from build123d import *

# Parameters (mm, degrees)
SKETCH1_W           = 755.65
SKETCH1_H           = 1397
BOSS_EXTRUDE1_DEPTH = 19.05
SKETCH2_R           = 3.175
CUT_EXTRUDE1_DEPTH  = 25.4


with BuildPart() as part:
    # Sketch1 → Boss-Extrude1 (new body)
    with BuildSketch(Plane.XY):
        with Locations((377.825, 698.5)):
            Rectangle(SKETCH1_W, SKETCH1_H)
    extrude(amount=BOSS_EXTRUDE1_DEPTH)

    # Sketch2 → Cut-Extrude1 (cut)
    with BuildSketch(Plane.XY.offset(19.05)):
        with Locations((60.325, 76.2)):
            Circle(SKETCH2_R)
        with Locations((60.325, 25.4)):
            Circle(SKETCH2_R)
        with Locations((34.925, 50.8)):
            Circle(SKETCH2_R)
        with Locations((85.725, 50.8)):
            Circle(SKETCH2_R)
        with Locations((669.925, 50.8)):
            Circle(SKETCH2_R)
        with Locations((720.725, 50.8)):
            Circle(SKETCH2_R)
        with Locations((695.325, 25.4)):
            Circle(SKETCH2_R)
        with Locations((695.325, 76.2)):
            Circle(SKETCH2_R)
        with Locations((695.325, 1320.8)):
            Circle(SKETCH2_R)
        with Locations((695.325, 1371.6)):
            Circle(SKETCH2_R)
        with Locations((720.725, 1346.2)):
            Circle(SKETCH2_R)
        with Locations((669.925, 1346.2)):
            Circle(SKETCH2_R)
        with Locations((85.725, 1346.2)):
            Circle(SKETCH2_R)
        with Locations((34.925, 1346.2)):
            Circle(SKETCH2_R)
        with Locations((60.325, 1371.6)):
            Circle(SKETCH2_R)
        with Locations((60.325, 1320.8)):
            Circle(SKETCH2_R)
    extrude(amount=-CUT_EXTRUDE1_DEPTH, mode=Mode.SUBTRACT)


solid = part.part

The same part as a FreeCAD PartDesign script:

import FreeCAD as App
import Part
import Sketcher
from FreeCAD import Vector
Q = App.Units.Quantity

doc = App.newDocument("Part")
body = doc.addObject("PartDesign::Body", "Body")

sketch1 = body.newObject("Sketcher::SketchObject", "Sketch")
sketch1.AttachmentSupport = (doc.getObject("XY_Plane"), [""])
sketch1.MapMode = "FlatFace"
sketch1.addGeometry(Part.LineSegment(Vector(0, 1397, 0), Vector(0, 0, 0)), False)
sketch1.addGeometry(Part.LineSegment(Vector(0, 0, 0), Vector(755.65, 0, 0)), False)
sketch1.addGeometry(Part.LineSegment(Vector(755.65, 0, 0), Vector(755.65, 1397, 0)), False)
sketch1.addGeometry(Part.LineSegment(Vector(755.65, 1397, 0), Vector(0, 1397, 0)), False)
sketch1.addConstraint(Sketcher.Constraint("Coincident", 0, 2, 1, 1))
sketch1.addConstraint(Sketcher.Constraint("Coincident", 1, 2, 2, 1))
sketch1.addConstraint(Sketcher.Constraint("Coincident", 2, 2, 3, 1))
sketch1.addConstraint(Sketcher.Constraint("Coincident", 3, 2, 0, 1))
sketch1.addConstraint(Sketcher.Constraint("Vertical", 0))
sketch1.addConstraint(Sketcher.Constraint("Horizontal", 1))
sketch1.addConstraint(Sketcher.Constraint("Vertical", 2))
sketch1.addConstraint(Sketcher.Constraint("Horizontal", 3))
sketch1.addConstraint(Sketcher.Constraint("Coincident", 0, 2, -1, 1))
sketch1.addConstraint(Sketcher.Constraint("DistanceY", 0, 2, 0, 1, Q("55 in")))
sketch1.addConstraint(Sketcher.Constraint("DistanceX", 1, 1, 1, 2, Q("29.75 in")))
pad1 = body.newObject("PartDesign::Pad", "Pad")
pad1.Profile = sketch1
pad1.Length = Q("0.75 in")

sketch2 = body.newObject("Sketcher::SketchObject", "Sketch001")
sketch2.AttachmentSupport = (doc.getObject("XY_Plane"), [""])
sketch2.MapMode = "FlatFace"
sketch2.AttachmentOffset = App.Placement(Vector(0, 0, 0.75 * 25.4), App.Rotation())
sketch2.addGeometry(Part.Circle(Vector(60.325, 76.2, 0), Vector(0, 0, 1), 3.175), False)
sketch2.addGeometry(Part.Circle(Vector(60.325, 25.4, 0), Vector(0, 0, 1), 3.175), False)
sketch2.addGeometry(Part.Circle(Vector(34.925, 50.8, 0), Vector(0, 0, 1), 3.175), False)
sketch2.addGeometry(Part.Circle(Vector(85.725, 50.8, 0), Vector(0, 0, 1), 3.175), False)
sketch2.addGeometry(Part.Circle(Vector(669.925, 50.8, 0), Vector(0, 0, 1), 3.175), False)
sketch2.addGeometry(Part.Circle(Vector(720.725, 50.8, 0), Vector(0, 0, 1), 3.175), False)
sketch2.addGeometry(Part.Circle(Vector(695.325, 25.4, 0), Vector(0, 0, 1), 3.175), False)
sketch2.addGeometry(Part.Circle(Vector(695.325, 76.2, 0), Vector(0, 0, 1), 3.175), False)
sketch2.addGeometry(Part.Circle(Vector(695.325, 1320.8, 0), Vector(0, 0, 1), 3.175), False)
sketch2.addGeometry(Part.Circle(Vector(695.325, 1371.6, 0), Vector(0, 0, 1), 3.175), False)
sketch2.addGeometry(Part.Circle(Vector(720.725, 1346.2, 0), Vector(0, 0, 1), 3.175), False)
sketch2.addGeometry(Part.Circle(Vector(669.925, 1346.2, 0), Vector(0, 0, 1), 3.175), False)
sketch2.addGeometry(Part.Circle(Vector(85.725, 1346.2, 0), Vector(0, 0, 1), 3.175), False)
sketch2.addGeometry(Part.Circle(Vector(34.925, 1346.2, 0), Vector(0, 0, 1), 3.175), False)
sketch2.addGeometry(Part.Circle(Vector(60.325, 1371.6, 0), Vector(0, 0, 1), 3.175), False)
sketch2.addGeometry(Part.Circle(Vector(60.325, 1320.8, 0), Vector(0, 0, 1), 3.175), False)
sketch2.addConstraint(Sketcher.Constraint("Equal", 0, 1))
sketch2.addConstraint(Sketcher.Constraint("Equal", 1, 2))
sketch2.addConstraint(Sketcher.Constraint("Equal", 2, 3))
sketch2.addConstraint(Sketcher.Constraint("Equal", 3, 4))
sketch2.addConstraint(Sketcher.Constraint("Equal", 4, 5))
sketch2.addConstraint(Sketcher.Constraint("Equal", 5, 6))
sketch2.addConstraint(Sketcher.Constraint("Equal", 6, 7))
sketch2.addConstraint(Sketcher.Constraint("Equal", 7, 8))
sketch2.addConstraint(Sketcher.Constraint("Equal", 8, 9))
sketch2.addConstraint(Sketcher.Constraint("Equal", 9, 10))
sketch2.addConstraint(Sketcher.Constraint("Equal", 10, 11))
sketch2.addConstraint(Sketcher.Constraint("Equal", 11, 12))
sketch2.addConstraint(Sketcher.Constraint("Equal", 12, 13))
sketch2.addConstraint(Sketcher.Constraint("Equal", 13, 14))
sketch2.addConstraint(Sketcher.Constraint("Equal", 14, 15))
sketch2.addConstraint(Sketcher.Constraint("Horizontal", 2, 3, 3, 3))
sketch2.addConstraint(Sketcher.Constraint("Horizontal", 3, 3, 4, 3))
sketch2.addConstraint(Sketcher.Constraint("Horizontal", 4, 3, 5, 3))
sketch2.addConstraint(Sketcher.Constraint("Horizontal", 1, 3, 6, 3))
sketch2.addConstraint(Sketcher.Constraint("Horizontal", 0, 3, 7, 3))
sketch2.addConstraint(Sketcher.Constraint("Horizontal", 10, 3, 11, 3))
sketch2.addConstraint(Sketcher.Constraint("Horizontal", 11, 3, 12, 3))
sketch2.addConstraint(Sketcher.Constraint("Horizontal", 12, 3, 13, 3))
sketch2.addConstraint(Sketcher.Constraint("Horizontal", 9, 3, 14, 3))
sketch2.addConstraint(Sketcher.Constraint("Horizontal", 8, 3, 15, 3))
sketch2.addConstraint(Sketcher.Constraint("Vertical", 0, 3, 1, 3))
sketch2.addConstraint(Sketcher.Constraint("Vertical", 6, 3, 7, 3))
sketch2.addConstraint(Sketcher.Constraint("Vertical", 7, 3, 8, 3))
sketch2.addConstraint(Sketcher.Constraint("Vertical", 8, 3, 9, 3))
sketch2.addConstraint(Sketcher.Constraint("Vertical", 5, 3, 10, 3))
sketch2.addConstraint(Sketcher.Constraint("Vertical", 4, 3, 11, 3))
sketch2.addConstraint(Sketcher.Constraint("Vertical", 3, 3, 12, 3))
sketch2.addConstraint(Sketcher.Constraint("Vertical", 2, 3, 13, 3))
sketch2.addConstraint(Sketcher.Constraint("Vertical", 1, 3, 14, 3))
sketch2.addConstraint(Sketcher.Constraint("Vertical", 14, 3, 15, 3))
sketch2.addConstraint(Sketcher.Constraint("Diameter", 0, Q("0.25 in")))
sketch2.addConstraint(Sketcher.Constraint("DistanceY", -1, 1, 0, 3, Q("3 in")))
sketch2.addConstraint(Sketcher.Constraint("DistanceY", -1, 1, 1, 3, Q("1 in")))
sketch2.addConstraint(Sketcher.Constraint("DistanceY", -1, 1, 2, 3, Q("2 in")))
sketch2.addConstraint(Sketcher.Constraint("DistanceY", -1, 1, 8, 3, Q("52 in")))
sketch2.addConstraint(Sketcher.Constraint("DistanceY", -1, 1, 9, 3, Q("54 in")))
sketch2.addConstraint(Sketcher.Constraint("DistanceY", -1, 1, 10, 3, Q("53 in")))
sketch2.addConstraint(Sketcher.Constraint("DistanceX", 2, 3, 1, 3, Q("1 in")))
sketch2.addConstraint(Sketcher.Constraint("DistanceX", 1, 3, 3, 3, Q("1 in")))
sketch2.addConstraint(Sketcher.Constraint("DistanceX", 3, 3, 4, 3, Q("23 in")))
sketch2.addConstraint(Sketcher.Constraint("DistanceX", 4, 3, 5, 3, Q("2 in")))
sketch2.addConstraint(Sketcher.Constraint("DistanceX", 6, 3, 5, 3, Q("1 in")))
sketch2.addConstraint(Sketcher.Constraint("DistanceX", -1, 1, 0, 3, Q("2.375 in")))
pocket1 = body.newObject("PartDesign::Pocket", "Pocket")
pocket1.Profile = sketch2
pocket1.Length = Q("1 in")

doc.recompute()
